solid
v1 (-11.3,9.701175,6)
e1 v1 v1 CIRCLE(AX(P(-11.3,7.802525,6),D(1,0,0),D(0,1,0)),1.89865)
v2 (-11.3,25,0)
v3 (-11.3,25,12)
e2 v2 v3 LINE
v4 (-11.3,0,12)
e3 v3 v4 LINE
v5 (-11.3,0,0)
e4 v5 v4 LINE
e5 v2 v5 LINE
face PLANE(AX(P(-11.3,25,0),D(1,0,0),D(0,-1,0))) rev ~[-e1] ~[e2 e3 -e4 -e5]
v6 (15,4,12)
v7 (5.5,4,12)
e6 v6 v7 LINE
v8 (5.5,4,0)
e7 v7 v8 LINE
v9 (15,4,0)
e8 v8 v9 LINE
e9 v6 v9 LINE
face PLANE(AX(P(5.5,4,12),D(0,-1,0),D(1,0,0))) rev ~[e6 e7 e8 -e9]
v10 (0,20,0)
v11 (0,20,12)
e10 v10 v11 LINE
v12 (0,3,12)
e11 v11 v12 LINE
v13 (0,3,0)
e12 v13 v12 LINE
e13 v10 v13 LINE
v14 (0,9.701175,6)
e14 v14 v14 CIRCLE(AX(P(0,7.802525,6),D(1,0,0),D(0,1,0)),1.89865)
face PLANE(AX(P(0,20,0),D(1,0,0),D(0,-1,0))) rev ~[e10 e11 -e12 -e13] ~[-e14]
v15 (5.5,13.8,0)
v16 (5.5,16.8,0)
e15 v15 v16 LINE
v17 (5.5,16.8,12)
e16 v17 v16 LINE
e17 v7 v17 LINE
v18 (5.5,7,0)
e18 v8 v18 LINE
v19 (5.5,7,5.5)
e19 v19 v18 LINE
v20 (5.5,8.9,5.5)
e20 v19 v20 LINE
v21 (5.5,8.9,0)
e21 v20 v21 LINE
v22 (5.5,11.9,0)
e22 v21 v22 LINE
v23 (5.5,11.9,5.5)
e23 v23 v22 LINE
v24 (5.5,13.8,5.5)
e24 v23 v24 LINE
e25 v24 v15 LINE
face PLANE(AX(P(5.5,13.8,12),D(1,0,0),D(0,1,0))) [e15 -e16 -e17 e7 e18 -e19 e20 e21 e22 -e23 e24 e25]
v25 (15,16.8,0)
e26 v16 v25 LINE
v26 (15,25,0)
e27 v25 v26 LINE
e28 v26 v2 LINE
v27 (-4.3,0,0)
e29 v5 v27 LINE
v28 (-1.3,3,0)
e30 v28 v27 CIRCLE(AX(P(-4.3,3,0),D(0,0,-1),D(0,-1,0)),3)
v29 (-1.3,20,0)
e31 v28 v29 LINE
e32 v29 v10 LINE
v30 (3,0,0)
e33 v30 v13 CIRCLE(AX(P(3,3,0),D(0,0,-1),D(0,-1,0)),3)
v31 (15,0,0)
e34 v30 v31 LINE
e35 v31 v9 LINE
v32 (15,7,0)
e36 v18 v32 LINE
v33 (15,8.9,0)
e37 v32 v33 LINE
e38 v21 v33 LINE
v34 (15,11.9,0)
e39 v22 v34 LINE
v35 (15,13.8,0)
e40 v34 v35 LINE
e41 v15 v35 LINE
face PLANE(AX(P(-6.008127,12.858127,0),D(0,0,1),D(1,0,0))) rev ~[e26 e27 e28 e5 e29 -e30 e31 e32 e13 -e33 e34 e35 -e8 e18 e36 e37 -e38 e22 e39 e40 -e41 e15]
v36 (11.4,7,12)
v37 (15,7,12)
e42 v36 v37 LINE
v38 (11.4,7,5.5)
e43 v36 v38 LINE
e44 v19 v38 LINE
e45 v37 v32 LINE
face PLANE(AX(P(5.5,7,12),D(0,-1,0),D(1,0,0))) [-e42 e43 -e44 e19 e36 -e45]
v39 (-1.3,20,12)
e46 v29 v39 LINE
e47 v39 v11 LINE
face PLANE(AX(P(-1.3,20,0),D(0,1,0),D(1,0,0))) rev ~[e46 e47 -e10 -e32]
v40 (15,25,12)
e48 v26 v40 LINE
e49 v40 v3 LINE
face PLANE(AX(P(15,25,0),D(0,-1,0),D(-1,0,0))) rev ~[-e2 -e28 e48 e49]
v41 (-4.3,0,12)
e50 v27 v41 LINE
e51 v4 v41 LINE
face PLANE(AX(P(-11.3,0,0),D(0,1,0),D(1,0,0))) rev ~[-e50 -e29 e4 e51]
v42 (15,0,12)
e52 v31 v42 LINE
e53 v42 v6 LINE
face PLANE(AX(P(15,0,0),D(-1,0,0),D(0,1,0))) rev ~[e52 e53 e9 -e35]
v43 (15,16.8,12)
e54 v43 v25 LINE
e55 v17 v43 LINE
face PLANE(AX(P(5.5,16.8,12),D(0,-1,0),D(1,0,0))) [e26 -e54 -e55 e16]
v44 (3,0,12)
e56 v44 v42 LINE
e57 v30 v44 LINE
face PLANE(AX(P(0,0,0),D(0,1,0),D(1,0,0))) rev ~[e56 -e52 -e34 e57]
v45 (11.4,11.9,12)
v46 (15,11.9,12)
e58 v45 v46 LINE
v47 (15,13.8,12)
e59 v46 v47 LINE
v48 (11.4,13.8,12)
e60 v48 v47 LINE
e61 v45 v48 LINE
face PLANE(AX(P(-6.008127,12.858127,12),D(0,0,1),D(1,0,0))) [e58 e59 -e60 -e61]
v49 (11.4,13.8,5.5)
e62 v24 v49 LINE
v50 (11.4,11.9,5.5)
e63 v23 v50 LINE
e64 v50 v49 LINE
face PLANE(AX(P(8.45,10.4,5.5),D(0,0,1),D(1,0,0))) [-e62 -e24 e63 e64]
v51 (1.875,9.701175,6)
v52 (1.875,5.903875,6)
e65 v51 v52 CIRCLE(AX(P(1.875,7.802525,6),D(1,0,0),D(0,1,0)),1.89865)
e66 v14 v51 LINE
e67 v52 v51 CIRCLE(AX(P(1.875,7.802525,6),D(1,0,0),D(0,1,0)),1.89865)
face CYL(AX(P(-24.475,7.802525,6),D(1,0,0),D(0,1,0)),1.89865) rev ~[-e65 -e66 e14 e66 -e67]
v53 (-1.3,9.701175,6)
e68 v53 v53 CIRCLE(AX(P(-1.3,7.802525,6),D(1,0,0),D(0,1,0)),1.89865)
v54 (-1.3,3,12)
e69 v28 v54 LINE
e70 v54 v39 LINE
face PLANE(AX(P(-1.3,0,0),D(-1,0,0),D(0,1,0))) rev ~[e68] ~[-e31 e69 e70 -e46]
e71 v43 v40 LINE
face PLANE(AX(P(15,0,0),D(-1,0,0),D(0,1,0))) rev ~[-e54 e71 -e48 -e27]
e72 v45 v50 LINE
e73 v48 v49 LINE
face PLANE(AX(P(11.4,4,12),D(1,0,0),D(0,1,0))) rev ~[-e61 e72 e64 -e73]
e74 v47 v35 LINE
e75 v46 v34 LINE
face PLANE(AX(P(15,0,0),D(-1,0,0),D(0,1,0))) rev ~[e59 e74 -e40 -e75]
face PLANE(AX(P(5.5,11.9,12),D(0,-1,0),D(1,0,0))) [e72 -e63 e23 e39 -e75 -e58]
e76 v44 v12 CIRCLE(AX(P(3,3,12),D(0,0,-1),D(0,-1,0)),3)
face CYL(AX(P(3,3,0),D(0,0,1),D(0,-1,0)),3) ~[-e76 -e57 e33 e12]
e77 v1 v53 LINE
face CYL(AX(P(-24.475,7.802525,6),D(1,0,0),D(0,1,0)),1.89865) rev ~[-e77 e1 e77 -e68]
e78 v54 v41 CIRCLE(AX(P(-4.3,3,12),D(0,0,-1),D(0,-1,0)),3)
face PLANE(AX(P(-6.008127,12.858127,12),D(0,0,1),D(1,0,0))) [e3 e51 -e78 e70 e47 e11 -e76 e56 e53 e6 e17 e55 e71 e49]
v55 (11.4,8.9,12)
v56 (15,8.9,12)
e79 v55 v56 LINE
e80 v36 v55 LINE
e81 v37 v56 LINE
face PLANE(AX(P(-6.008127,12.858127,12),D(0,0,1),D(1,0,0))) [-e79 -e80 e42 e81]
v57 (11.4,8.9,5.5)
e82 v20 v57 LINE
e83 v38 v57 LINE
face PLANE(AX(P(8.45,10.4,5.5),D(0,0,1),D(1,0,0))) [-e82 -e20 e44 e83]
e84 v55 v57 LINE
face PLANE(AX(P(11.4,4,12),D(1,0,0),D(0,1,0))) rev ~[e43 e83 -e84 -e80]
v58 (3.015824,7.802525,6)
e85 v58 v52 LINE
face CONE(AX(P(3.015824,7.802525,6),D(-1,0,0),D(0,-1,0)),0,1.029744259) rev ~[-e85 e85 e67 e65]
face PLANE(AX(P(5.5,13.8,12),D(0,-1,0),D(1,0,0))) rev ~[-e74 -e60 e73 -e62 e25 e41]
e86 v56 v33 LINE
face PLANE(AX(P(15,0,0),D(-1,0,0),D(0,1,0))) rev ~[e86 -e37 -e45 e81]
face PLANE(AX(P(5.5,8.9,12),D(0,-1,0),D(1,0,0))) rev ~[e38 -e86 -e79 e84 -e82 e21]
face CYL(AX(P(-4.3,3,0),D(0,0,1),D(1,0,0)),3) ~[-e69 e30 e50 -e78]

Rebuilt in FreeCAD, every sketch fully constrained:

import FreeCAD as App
import Part
import Sketcher
from FreeCAD import Vector


def edges_at(feature, points):
    """Names of the edges that pass closest to the given points."""
    edges = feature.Shape.Edges
    near = lambda p: min(range(len(edges)), key=lambda i: edges[i].distToShape(Part.Vertex(*p))[0])
    return sorted({f"Edge{near(p) + 1}" for p in points})


def add_polygon(sketch, points):
    """Adds a closed chain of lines whose ends are joined by coincident constraints."""
    first, n = sketch.GeometryCount, len(points)
    for a, b in zip(points, points[1:] + points[:1]):
        sketch.addGeometry(Part.LineSegment(App.Vector(*a, 0), App.Vector(*b, 0)), False)
    for i in range(n):
        sketch.addConstraint(Sketcher.Constraint("Coincident", first + i, 2, first + (i + 1) % n, 1))

doc = App.newDocument("Part")
body = doc.addObject("PartDesign::Body", "Body")

sketch1 = body.newObject("Sketcher::SketchObject", "Sketch")
sketch1.AttachmentSupport = (doc.getObject("XY_Plane"), [""])
sketch1.MapMode = "FlatFace"
add_polygon(sketch1, [(-11.3, 25), (-11.3, 0), (-1.3, 0), (-1.3, 20), (0, 20), (0, 0), (15, 0), (15, 25)])
sketch1.addConstraint([
    Sketcher.Constraint("Vertical", 0),
    Sketcher.Constraint("Horizontal", 1),
    Sketcher.Constraint("Vertical", 2),
    Sketcher.Constraint("Horizontal", 3),
    Sketcher.Constraint("Vertical", 4),
    Sketcher.Constraint("Horizontal", 5),
    Sketcher.Constraint("Vertical", 6),
    Sketcher.Constraint("Horizontal", 7),
    Sketcher.Constraint("Coincident", 4, 2, -1, 1),
    Sketcher.Constraint("PointOnObject", 0, 2, -1),
    Sketcher.Constraint("DistanceX", 1, 1, 1, 2, 10.0),
    Sketcher.Constraint("DistanceX", 5, 1, 5, 2, 15.0),
    Sketcher.Constraint("DistanceY", 0, 2, 0, 1, 25.0),
    Sketcher.Constraint("DistanceY", 2, 1, 2, 2, 20.0),
    Sketcher.Constraint("DistanceX", 3, 1, 3, 2, 1.3),
])
pad1 = body.newObject("PartDesign::Pad", "Pad")
pad1.Profile = sketch1
pad1.Length = 12

sketch2 = body.newObject("Sketcher::SketchObject", "Sketch001")
sketch2.AttachmentSupport = (doc.getObject("XY_Plane"), [""])
sketch2.MapMode = "FlatFace"
sketch2.AttachmentOffset = App.Placement(Vector(0, 0, 12), App.Rotation())
add_polygon(sketch2, [(6, 17), (6, 4), (11, 4), (11, 17)])
sketch2.addConstraint([
    Sketcher.Constraint("Vertical", 0),
    Sketcher.Constraint("Horizontal", 1),
    Sketcher.Constraint("Vertical", 2),
    Sketcher.Constraint("Horizontal", 3),
    Sketcher.Constraint("DistanceX", 1, 1, 1, 2, 5.9),
    Sketcher.Constraint("DistanceY", 0, 2, 0, 1, 12.8),
    Sketcher.Constraint("DistanceY", -1, 1, 0, 2, 4.0),
    Sketcher.Constraint("DistanceX", -1, 1, 0, 2, 5.5),
])
pocket1 = body.newObject("PartDesign::Pocket", "Pocket")
pocket1.Profile = sketch2
pocket1.Length = 6.5

sketch3 = body.newObject("Sketcher::SketchObject", "Sketch002")
sketch3.AttachmentSupport = (doc.getObject("XY_Plane"), [""])
sketch3.MapMode = "FlatFace"
sketch3.AttachmentOffset = App.Placement(Vector(0, 0, 12), App.Rotation())
add_polygon(sketch3, [(5.5, 7), (5.5, 4), (15, 4), (15, 7)])
add_polygon(sketch3, [(5.5, 11.9), (5.5, 8.9), (15, 8.9), (15, 11.9)])
add_polygon(sketch3, [(5.5, 16.8), (5.5, 13.8), (15, 13.8), (15, 16.8)])
sketch3.addConstraint([
    Sketcher.Constraint("Vertical", 0),
    Sketcher.Constraint("Horizontal", 1),
    Sketcher.Constraint("Vertical", 2),
    Sketcher.Constraint("Horizontal", 3),
    Sketcher.Constraint("Vertical", 4),
    Sketcher.Constraint("Horizontal", 5),
    Sketcher.Constraint("Vertical", 6),
    Sketcher.Constraint("Horizontal", 7),
    Sketcher.Constraint("Vertical", 8),
    Sketcher.Constraint("Horizontal", 9),
    Sketcher.Constraint("Vertical", 10),
    Sketcher.Constraint("Horizontal", 11),
    Sketcher.Constraint("Vertical", 3, 2, 4, 2),
    Sketcher.Constraint("Vertical", 2, 2, 5, 2),
    Sketcher.Constraint("Vertical", 7, 2, 8, 2),
    Sketcher.Constraint("Vertical", 6, 2, 9, 2),
    Sketcher.Constraint("Equal", 2, 4),
    Sketcher.Constraint("Equal", 6, 8),
    Sketcher.Constraint("DistanceY", 0, 2, 0, 1, 3.0),
    Sketcher.Constraint("DistanceX", 1, 1, 1, 2, 9.5),
    Sketcher.Constraint("DistanceY", -1, 1, 0, 2, 4.0),
    Sketcher.Constraint("DistanceX", -1, 1, 1, 2, 15.0),
    Sketcher.Constraint("DistanceY", -1, 1, 4, 2, 8.9),
    Sketcher.Constraint("DistanceY", -1, 1, 8, 2, 13.8),
])
pocket2 = body.newObject("PartDesign::Pocket", "Pocket001")
pocket2.Profile = sketch3
pocket2.Type = "ThroughAll"
doc.recompute()

fillet = body.newObject("PartDesign::Fillet", "Fillet")
fillet.Base = (pocket2, edges_at(pocket2, [(-1.3, 0, 6), (0, 0, 6)]))
fillet.Radius = 3

sketch4 = body.newObject("Sketcher::SketchObject", "Sketch003")
sketch4.AttachmentSupport = (doc.getObject("YZ_Plane"), [""])
sketch4.MapMode = "FlatFace"
sketch4.AttachmentOffset = App.Placement(Vector(0, 0, -11.3), App.Rotation())
sketch4.addGeometry(Part.Circle(Vector(7.8, 6, 0), Vector(0, 0, 1), 1.9), False)
sketch4.addConstraint([
    Sketcher.Constraint("DistanceY", -1, 1, 0, 3, 6.0),
    Sketcher.Constraint("Diameter", 0, 3.7973),
    Sketcher.Constraint("DistanceX", -1, 1, 0, 3, 7.802525),
])
doc.recompute()
hole = body.newObject("PartDesign::Hole", "Hole")
hole.Profile = sketch4
hole.ThreadType = "None"
hole.Diameter = 3.7973
hole.DepthType = "Dimension"
hole.Depth = 13.175
hole.DrillPoint = "Angled"
hole.DrillPointAngle = 118
hole.Reversed = True

doc.recompute()
